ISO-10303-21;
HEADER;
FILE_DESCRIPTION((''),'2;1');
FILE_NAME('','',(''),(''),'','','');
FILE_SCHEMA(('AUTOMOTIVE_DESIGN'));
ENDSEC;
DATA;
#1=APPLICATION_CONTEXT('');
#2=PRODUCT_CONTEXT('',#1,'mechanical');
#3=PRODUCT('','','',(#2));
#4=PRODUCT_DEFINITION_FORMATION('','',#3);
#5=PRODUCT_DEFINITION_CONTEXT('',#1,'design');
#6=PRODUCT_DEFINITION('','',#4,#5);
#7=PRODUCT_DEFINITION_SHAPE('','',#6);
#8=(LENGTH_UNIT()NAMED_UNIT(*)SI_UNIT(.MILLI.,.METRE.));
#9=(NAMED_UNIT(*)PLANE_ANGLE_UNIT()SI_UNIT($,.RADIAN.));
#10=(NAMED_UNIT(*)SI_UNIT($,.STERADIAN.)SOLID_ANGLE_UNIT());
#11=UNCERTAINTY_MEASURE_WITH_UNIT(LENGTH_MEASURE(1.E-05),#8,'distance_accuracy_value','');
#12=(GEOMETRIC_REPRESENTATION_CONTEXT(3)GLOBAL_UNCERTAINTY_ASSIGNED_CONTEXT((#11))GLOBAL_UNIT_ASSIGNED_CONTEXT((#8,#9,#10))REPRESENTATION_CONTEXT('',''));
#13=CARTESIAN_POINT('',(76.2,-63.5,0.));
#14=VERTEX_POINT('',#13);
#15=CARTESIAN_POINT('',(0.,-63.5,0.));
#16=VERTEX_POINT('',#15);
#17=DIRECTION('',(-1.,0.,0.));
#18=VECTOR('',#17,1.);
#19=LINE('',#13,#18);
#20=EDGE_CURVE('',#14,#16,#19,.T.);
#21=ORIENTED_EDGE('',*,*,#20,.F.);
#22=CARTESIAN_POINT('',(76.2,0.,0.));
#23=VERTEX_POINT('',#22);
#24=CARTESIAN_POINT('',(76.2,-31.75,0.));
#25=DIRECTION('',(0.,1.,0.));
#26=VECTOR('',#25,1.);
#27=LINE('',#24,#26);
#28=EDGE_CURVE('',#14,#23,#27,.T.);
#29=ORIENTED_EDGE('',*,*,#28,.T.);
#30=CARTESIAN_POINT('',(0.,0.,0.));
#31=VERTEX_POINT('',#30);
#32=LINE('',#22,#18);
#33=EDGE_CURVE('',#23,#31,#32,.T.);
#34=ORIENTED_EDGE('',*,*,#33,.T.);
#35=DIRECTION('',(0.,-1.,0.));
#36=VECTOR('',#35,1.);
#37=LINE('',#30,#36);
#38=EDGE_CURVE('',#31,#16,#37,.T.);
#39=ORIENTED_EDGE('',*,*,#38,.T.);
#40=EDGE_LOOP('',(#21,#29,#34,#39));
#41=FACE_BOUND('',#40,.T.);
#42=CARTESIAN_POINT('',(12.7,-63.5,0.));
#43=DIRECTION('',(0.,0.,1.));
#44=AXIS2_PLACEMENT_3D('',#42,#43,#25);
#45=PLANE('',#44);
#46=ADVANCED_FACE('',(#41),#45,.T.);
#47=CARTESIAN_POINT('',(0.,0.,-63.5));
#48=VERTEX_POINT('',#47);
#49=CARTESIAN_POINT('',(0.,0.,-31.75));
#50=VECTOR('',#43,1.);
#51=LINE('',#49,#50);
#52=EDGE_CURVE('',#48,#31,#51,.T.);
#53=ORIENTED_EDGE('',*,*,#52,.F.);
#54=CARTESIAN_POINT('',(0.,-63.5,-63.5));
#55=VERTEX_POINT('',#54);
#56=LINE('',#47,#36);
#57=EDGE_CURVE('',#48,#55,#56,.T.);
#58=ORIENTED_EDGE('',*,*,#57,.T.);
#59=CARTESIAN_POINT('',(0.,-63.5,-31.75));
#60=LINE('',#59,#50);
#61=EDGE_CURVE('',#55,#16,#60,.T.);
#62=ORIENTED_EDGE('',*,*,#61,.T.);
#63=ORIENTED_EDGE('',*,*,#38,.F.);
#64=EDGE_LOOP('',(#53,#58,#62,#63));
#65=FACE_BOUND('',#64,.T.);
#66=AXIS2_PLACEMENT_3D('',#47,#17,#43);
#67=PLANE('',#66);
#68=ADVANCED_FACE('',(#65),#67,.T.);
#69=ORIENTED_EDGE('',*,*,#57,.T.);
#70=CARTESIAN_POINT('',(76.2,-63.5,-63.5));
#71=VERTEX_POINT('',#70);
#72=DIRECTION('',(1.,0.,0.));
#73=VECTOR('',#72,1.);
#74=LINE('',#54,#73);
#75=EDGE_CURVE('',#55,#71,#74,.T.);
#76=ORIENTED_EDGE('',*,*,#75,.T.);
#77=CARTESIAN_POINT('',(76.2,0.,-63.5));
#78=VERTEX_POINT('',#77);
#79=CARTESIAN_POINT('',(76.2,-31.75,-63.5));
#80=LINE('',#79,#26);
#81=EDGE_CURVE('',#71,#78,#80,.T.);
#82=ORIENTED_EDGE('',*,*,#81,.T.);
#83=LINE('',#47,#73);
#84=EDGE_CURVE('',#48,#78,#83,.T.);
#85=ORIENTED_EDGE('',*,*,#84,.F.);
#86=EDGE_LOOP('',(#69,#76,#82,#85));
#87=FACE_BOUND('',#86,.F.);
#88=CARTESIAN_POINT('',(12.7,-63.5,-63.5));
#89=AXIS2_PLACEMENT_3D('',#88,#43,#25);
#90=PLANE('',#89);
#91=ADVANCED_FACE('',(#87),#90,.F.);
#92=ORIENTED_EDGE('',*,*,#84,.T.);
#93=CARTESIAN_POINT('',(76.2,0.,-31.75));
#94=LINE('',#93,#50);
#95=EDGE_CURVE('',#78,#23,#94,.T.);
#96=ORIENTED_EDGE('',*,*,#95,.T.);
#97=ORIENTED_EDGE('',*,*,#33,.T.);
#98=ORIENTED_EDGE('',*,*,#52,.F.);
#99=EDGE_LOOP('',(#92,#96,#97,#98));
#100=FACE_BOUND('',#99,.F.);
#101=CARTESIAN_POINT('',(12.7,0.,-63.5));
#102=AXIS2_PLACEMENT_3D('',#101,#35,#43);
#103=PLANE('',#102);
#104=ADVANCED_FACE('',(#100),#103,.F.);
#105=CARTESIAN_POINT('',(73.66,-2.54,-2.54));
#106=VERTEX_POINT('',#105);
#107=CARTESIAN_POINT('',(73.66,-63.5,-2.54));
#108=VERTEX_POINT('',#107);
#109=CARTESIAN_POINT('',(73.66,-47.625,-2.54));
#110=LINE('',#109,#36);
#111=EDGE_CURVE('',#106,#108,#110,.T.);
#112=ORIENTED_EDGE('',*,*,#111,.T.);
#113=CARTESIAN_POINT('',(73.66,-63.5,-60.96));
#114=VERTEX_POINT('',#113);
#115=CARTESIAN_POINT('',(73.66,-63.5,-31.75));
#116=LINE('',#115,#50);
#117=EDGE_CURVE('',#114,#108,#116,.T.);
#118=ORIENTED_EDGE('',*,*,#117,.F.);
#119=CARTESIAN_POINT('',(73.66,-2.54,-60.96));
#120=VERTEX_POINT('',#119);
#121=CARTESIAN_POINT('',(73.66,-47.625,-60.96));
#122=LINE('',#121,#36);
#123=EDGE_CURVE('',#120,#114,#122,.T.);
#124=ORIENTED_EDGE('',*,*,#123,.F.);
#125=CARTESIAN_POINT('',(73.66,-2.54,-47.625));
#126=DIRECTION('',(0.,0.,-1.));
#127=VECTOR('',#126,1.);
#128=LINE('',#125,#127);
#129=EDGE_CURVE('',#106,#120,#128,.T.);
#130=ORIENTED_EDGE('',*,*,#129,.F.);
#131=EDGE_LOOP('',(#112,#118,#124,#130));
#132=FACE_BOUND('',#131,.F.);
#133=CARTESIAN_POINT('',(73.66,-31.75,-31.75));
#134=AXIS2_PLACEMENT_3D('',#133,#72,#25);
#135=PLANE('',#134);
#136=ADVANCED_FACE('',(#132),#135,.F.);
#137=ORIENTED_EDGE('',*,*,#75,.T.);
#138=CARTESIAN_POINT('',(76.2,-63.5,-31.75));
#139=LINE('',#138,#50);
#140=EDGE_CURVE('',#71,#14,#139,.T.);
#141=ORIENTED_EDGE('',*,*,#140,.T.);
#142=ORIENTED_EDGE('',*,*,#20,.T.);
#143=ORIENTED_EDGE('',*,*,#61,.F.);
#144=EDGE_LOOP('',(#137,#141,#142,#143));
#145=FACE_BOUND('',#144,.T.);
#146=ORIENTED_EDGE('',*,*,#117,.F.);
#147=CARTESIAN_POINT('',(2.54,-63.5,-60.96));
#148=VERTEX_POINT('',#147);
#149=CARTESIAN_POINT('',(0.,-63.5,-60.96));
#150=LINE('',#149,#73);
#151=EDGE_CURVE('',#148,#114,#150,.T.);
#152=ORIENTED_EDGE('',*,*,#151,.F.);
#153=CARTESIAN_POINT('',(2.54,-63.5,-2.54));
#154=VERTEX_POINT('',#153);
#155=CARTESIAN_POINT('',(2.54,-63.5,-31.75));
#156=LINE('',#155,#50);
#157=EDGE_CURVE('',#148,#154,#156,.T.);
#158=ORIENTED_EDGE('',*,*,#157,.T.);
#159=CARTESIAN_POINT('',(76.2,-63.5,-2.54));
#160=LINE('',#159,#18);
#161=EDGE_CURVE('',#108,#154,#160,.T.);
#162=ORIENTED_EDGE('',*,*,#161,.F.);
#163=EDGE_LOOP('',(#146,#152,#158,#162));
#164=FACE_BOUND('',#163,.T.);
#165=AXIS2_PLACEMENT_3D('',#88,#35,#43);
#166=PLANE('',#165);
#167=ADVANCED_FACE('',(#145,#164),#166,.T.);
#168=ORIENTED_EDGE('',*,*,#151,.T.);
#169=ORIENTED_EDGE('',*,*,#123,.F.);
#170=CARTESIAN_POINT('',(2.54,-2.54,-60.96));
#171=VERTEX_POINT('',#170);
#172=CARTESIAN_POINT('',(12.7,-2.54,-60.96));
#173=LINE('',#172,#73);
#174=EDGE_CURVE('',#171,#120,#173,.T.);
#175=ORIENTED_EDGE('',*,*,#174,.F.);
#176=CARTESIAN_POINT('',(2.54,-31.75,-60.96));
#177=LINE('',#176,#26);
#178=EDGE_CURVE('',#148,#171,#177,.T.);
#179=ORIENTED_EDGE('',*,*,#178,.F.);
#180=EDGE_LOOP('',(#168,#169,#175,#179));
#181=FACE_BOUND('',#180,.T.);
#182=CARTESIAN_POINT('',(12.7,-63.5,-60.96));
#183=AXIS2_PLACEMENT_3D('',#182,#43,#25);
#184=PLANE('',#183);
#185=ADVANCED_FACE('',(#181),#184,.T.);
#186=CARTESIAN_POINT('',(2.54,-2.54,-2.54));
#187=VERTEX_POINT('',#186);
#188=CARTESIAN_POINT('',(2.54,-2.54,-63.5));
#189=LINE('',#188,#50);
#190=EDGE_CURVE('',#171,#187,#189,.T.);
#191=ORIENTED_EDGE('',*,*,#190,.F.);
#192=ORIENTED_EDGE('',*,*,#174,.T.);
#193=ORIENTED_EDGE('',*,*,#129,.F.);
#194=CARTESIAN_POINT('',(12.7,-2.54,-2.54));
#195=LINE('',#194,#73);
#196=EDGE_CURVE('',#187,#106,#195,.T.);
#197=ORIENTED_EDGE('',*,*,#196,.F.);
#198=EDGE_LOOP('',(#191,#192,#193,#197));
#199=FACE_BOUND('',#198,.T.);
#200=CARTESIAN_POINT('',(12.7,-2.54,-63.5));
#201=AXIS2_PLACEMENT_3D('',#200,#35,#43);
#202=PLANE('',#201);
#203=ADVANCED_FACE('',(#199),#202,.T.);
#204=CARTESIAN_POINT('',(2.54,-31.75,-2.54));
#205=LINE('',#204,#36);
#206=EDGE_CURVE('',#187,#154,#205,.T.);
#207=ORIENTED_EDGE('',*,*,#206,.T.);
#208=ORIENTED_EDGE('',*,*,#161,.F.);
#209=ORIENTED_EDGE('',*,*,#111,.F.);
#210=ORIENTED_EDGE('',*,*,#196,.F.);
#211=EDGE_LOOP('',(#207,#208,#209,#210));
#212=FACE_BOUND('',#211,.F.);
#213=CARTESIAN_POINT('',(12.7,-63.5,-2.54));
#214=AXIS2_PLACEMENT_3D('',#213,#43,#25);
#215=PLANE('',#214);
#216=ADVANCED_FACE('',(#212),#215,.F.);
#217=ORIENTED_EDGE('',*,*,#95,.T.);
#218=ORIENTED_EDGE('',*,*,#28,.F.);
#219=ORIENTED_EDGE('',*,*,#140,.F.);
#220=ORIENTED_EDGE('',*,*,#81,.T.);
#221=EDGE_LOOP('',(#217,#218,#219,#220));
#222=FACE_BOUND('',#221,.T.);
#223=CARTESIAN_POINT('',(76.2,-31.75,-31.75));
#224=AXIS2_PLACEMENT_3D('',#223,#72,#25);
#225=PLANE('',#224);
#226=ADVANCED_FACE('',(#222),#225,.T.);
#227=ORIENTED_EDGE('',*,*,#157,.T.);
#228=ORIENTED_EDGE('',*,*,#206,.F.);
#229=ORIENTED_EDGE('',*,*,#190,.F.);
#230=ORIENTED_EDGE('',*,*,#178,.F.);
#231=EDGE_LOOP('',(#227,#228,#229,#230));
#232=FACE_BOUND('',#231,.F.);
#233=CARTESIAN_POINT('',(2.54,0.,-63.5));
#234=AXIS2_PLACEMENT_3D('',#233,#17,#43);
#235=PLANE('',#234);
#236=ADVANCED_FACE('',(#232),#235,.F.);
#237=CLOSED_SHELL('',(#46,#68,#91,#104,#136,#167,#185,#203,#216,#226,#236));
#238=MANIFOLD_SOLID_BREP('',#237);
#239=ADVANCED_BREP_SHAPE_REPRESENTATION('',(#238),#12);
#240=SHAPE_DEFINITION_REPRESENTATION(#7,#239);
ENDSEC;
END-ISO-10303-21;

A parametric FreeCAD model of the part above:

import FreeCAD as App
import Part
import Sketcher
Q = App.Units.Quantity


def faces_at(feature, points):
    """Names of the faces that lie closest to the given points."""
    faces = feature.Shape.Faces
    near = lambda p: min(range(len(faces)), key=lambda i: faces[i].distToShape(Part.Vertex(*p))[0])
    return sorted({f"Face{near(p) + 1}" for p in points})


def add_polygon(sketch, points):
    """Adds a closed chain of lines whose ends are joined by coincident constraints."""
    first, n = sketch.GeometryCount, len(points)
    for a, b in zip(points, points[1:] + points[:1]):
        sketch.addGeometry(Part.LineSegment(App.Vector(*a, 0), App.Vector(*b, 0)), False)
    for i in range(n):
        sketch.addConstraint(Sketcher.Constraint("Coincident", first + i, 2, first + (i + 1) % n, 1))

doc = App.newDocument("Part")
body = doc.addObject("PartDesign::Body", "Body")

# Sketch on XZ plane
sketch1 = doc.addObject("Sketcher::SketchObject", "Sketch")
body.addObject(sketch1)
sketch1.AttachmentSupport = (doc.XZ_Plane, [""])
sketch1.MapMode = "FlatFace"
add_polygon(sketch1, [(0, 0), (0, -64), (13, -64), (13, 0)])  # lines 0-3
sketch1.addConstraint([
    Sketcher.Constraint("Vertical", 0),
    Sketcher.Constraint("Horizontal", 1),
    Sketcher.Constraint("Vertical", 2),
    Sketcher.Constraint("Horizontal", 3),
    Sketcher.Constraint("Coincident", 3, 2, -1, 1),
    Sketcher.Constraint("DistanceX", 1, 1, 1, 2, Q("0.5 in")),
    Sketcher.Constraint("DistanceY", 0, 2, 0, 1, Q("2.5 in")),
])
pad1 = doc.addObject("PartDesign::Pad", "Pad")
body.addObject(pad1)
pad1.Profile = sketch1
pad1.Length = Q("2.5 in")

# Sketch on YZ plane
sketch2 = doc.addObject("Sketcher::SketchObject", "Sketch001")
body.addObject(sketch2)
sketch2.AttachmentSupport = (doc.YZ_Plane, [""])
sketch2.MapMode = "FlatFace"
sketch2.AttachmentOffset = App.Placement(App.Vector(0, 0, 0.5 * 25.4), App.Rotation())
add_polygon(sketch2, [(-64, 0), (-64, -64), (0, -64), (0, 0)])  # lines 0-3
sketch2.addConstraint([
    Sketcher.Constraint("Vertical", 0),
    Sketcher.Constraint("Horizontal", 1),
    Sketcher.Constraint("Vertical", 2),
    Sketcher.Constraint("Horizontal", 3),
    Sketcher.Constraint("Coincident", 2, 2, -1, 1),
    Sketcher.Constraint("Equal", 3, 0),
    Sketcher.Constraint("DistanceX", 1, 1, 1, 2, Q("2.5 in")),
])
pad2 = doc.addObject("PartDesign::Pad", "Pad001")
body.addObject(pad2)
pad2.Profile = sketch2
pad2.Length = Q("2.5 in")
doc.recompute()

thickness = doc.addObject("PartDesign::Thickness", "Thickness")
body.addObject(thickness)
thickness.Base = (pad2, faces_at(pad2, [(38.1, -63.5, -31.75)]))
thickness.Value = Q("0.1 in")
thickness.Reversed = True
thickness.Join = "Arc"

doc.recompute()
